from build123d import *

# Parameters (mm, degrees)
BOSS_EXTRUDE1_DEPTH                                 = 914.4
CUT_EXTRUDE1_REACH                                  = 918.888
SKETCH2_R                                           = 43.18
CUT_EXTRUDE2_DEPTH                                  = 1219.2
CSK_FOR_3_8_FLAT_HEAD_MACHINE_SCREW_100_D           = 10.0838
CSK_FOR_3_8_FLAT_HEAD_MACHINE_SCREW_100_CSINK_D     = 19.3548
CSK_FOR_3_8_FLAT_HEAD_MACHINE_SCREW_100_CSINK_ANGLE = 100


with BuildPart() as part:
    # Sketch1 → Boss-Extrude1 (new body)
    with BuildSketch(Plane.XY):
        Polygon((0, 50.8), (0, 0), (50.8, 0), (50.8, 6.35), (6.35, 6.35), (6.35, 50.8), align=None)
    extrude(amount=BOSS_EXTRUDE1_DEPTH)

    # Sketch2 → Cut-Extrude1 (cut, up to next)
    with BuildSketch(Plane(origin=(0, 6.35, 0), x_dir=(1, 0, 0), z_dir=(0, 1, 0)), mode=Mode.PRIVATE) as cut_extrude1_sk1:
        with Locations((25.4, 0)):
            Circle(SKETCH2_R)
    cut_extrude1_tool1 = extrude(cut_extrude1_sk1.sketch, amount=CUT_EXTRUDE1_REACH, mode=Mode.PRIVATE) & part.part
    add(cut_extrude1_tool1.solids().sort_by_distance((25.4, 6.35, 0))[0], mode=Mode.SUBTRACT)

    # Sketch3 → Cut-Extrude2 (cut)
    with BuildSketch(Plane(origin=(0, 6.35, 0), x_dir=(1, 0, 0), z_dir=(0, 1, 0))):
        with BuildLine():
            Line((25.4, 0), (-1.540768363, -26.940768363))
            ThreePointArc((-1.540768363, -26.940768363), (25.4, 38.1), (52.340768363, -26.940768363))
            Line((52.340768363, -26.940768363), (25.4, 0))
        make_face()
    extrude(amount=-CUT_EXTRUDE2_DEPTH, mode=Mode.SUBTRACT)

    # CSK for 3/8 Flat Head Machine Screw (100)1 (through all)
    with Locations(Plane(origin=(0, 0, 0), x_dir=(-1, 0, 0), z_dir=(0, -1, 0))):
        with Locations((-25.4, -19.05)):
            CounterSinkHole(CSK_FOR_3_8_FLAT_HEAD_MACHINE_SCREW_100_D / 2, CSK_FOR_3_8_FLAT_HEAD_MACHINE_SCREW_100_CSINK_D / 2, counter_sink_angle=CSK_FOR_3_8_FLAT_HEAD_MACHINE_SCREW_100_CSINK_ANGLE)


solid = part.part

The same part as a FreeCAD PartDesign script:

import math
import FreeCAD as App
import Part
import Sketcher

V = App.Vector
Q = App.Units.Quantity

doc = App.newDocument("Part")
params = doc.addObject("Spreadsheet::Sheet", "Params")
for row, (alias, value) in enumerate([
    ("sketch1_width", "2 in"),
    ("sketch1_width2", "1.75 in"),
    ("pad1_length", "36 in"),
    ("sketch2_diameter", "3.4 in"),
    ("pocket1_length", "1.75 in"),
    ("sketch3_radius", "1.5 in"),
    ("pocket2_length", "48 in"),
    ("sketch4_diameter", "0.397 in"),
    ("hole_diameter", "0.397 in"),
    ("hole_csink_diameter", "0.762 in"),
], start=1):
    params.set(f"A{row}", alias)
    params.set(f"B{row}", "=" + value)
    params.setAlias(f"B{row}", alias)

body = doc.addObject("PartDesign::Body", "Body")

sketch1 = body.newObject("Sketcher::SketchObject", "Sketch")
sketch1.AttachmentSupport = (doc.getObject("XY_Plane"), [""])
sketch1.MapMode = "FlatFace"
sketch1.addGeometry([
    Part.LineSegment(V(0, 51, 0), V(0, 0, 0)),
    Part.LineSegment(V(0, 0, 0), V(51, 0, 0)),
    Part.LineSegment(V(51, 0, 0), V(51, 6, 0)),
    Part.LineSegment(V(51, 6, 0), V(6, 6, 0)),
    Part.LineSegment(V(6, 6, 0), V(6, 51, 0)),
    Part.LineSegment(V(6, 51, 0), V(0, 51, 0)),
], False)
sketch1.addConstraint([
    Sketcher.Constraint("Coincident", 0, 2, 1, 1),
    Sketcher.Constraint("Coincident", 1, 2, 2, 1),
    Sketcher.Constraint("Coincident", 2, 2, 3, 1),
    Sketcher.Constraint("Coincident", 3, 2, 4, 1),
    Sketcher.Constraint("Coincident", 4, 2, 5, 1),
    Sketcher.Constraint("Coincident", 5, 2, 0, 1),
    Sketcher.Constraint("Vertical", 0),
    Sketcher.Constraint("Horizontal", 1),
    Sketcher.Constraint("Vertical", 2),
    Sketcher.Constraint("Horizontal", 3),
    Sketcher.Constraint("Vertical", 4),
    Sketcher.Constraint("Horizontal", 5),
    Sketcher.Constraint("Coincident", 0, 2, -1, 1),
    Sketcher.Constraint("Equal", 1, 0),
    Sketcher.Constraint("Equal", 5, 2),
    Sketcher.Constraint("DistanceX", 1, 1, 1, 2, Q("2 in")),
    Sketcher.Constraint("DistanceX", 3, 2, 3, 1, Q("1.75 in")),
])
sketch1.setExpression("Constraints[15]", "Params.sketch1_width")
sketch1.setExpression("Constraints[16]", "Params.sketch1_width2")
pad1 = body.newObject("PartDesign::Pad", "Pad")
pad1.Profile = sketch1
pad1.setExpression("Length", "Params.pad1_length")

sketch2 = body.newObject("Sketcher::SketchObject", "Sketch001")
sketch2.AttachmentSupport = (doc.getObject("XZ_Plane"), [""])
sketch2.MapMode = "FlatFace"
sketch2.AttachmentOffset = App.Placement(V(0, 0, -0.25 * 25.4), App.Rotation())
sketch2.addGeometry(Part.Circle(V(25, 0, 0), V(0, 0, 1), 43), False)
sketch2.addConstraint([
    Sketcher.Constraint("PointOnObject", 0, 3, -1),
    Sketcher.Constraint("Diameter", 0, Q("3.4 in")),
    Sketcher.Constraint("DistanceX", -1, 1, 0, 3, Q("1 in")),
])
sketch2.setExpression("Constraints[1]", "Params.sketch2_diameter")
pocket1 = body.newObject("PartDesign::Pocket", "Pocket")
pocket1.Profile = sketch2
pocket1.setExpression("Length", "Params.pocket1_length")

sketch3 = body.newObject("Sketcher::SketchObject", "Sketch002")
sketch3.AttachmentSupport = (doc.getObject("XZ_Plane"), [""])
sketch3.MapMode = "FlatFace"
sketch3.AttachmentOffset = App.Placement(V(0, 0, -0.25 * 25.4), App.Rotation())
sketch3.addGeometry([
    Part.LineSegment(V(-2, 27, 0), V(25, 0, 0)),
    Part.LineSegment(V(25, 0, 0), V(52, 27, 0)),
    Part.ArcOfCircle(Part.Circle(V(25, 0, 0), V(0, 0, 1), 38), math.radians(135), math.radians(405)),
], False)
sketch3.addConstraint([
    Sketcher.Constraint("Coincident", 0, 2, 1, 1),
    Sketcher.Constraint("Coincident", 1, 2, 2, 2),
    Sketcher.Constraint("Coincident", 2, 1, 0, 1),
    Sketcher.Constraint("Coincident", 0, 2, 2, 3),
    Sketcher.Constraint("PointOnObject", 2, 3, -1),
    Sketcher.Constraint("Perpendicular", 0, 1),
    Sketcher.Constraint("Horizontal", 1, 2, 2, 1),
    Sketcher.Constraint("Radius", 2, Q("1.5 in")),
    Sketcher.Constraint("DistanceX", -1, 1, 2, 3, Q("1 in")),
])
sketch3.setExpression("Constraints[7]", "Params.sketch3_radius")
pocket2 = body.newObject("PartDesign::Pocket", "Pocket001")
pocket2.Profile = sketch3
pocket2.setExpression("Length", "Params.pocket2_length")
pocket2.Reversed = True

sketch4 = body.newObject("Sketcher::SketchObject", "Sketch003")
sketch4.AttachmentSupport = (doc.getObject("XZ_Plane"), [""])
sketch4.MapMode = "FlatFace"
sketch4.addGeometry(Part.Circle(V(25, 19, 0), V(0, 0, 1), 5), False)
sketch4.addConstraint([
    Sketcher.Constraint("Diameter", 0, Q("0.397 in")),
    Sketcher.Constraint("DistanceX", -1, 1, 0, 3, Q("1 in")),
    Sketcher.Constraint("DistanceY", -1, 1, 0, 3, Q("0.75 in")),
])
sketch4.setExpression("Constraints[0]", "Params.sketch4_diameter")
doc.recompute()
hole = body.newObject("PartDesign::Hole", "Hole")
hole.Profile = sketch4
hole.ThreadType = "None"
hole.setExpression("Diameter", "Params.hole_diameter")
hole.DepthType = "ThroughAll"
hole.HoleCutType = "Countersink"
hole.setExpression("HoleCutDiameter", "Params.hole_csink_diameter")
hole.HoleCutCountersinkAngle = 100

doc.recompute()
